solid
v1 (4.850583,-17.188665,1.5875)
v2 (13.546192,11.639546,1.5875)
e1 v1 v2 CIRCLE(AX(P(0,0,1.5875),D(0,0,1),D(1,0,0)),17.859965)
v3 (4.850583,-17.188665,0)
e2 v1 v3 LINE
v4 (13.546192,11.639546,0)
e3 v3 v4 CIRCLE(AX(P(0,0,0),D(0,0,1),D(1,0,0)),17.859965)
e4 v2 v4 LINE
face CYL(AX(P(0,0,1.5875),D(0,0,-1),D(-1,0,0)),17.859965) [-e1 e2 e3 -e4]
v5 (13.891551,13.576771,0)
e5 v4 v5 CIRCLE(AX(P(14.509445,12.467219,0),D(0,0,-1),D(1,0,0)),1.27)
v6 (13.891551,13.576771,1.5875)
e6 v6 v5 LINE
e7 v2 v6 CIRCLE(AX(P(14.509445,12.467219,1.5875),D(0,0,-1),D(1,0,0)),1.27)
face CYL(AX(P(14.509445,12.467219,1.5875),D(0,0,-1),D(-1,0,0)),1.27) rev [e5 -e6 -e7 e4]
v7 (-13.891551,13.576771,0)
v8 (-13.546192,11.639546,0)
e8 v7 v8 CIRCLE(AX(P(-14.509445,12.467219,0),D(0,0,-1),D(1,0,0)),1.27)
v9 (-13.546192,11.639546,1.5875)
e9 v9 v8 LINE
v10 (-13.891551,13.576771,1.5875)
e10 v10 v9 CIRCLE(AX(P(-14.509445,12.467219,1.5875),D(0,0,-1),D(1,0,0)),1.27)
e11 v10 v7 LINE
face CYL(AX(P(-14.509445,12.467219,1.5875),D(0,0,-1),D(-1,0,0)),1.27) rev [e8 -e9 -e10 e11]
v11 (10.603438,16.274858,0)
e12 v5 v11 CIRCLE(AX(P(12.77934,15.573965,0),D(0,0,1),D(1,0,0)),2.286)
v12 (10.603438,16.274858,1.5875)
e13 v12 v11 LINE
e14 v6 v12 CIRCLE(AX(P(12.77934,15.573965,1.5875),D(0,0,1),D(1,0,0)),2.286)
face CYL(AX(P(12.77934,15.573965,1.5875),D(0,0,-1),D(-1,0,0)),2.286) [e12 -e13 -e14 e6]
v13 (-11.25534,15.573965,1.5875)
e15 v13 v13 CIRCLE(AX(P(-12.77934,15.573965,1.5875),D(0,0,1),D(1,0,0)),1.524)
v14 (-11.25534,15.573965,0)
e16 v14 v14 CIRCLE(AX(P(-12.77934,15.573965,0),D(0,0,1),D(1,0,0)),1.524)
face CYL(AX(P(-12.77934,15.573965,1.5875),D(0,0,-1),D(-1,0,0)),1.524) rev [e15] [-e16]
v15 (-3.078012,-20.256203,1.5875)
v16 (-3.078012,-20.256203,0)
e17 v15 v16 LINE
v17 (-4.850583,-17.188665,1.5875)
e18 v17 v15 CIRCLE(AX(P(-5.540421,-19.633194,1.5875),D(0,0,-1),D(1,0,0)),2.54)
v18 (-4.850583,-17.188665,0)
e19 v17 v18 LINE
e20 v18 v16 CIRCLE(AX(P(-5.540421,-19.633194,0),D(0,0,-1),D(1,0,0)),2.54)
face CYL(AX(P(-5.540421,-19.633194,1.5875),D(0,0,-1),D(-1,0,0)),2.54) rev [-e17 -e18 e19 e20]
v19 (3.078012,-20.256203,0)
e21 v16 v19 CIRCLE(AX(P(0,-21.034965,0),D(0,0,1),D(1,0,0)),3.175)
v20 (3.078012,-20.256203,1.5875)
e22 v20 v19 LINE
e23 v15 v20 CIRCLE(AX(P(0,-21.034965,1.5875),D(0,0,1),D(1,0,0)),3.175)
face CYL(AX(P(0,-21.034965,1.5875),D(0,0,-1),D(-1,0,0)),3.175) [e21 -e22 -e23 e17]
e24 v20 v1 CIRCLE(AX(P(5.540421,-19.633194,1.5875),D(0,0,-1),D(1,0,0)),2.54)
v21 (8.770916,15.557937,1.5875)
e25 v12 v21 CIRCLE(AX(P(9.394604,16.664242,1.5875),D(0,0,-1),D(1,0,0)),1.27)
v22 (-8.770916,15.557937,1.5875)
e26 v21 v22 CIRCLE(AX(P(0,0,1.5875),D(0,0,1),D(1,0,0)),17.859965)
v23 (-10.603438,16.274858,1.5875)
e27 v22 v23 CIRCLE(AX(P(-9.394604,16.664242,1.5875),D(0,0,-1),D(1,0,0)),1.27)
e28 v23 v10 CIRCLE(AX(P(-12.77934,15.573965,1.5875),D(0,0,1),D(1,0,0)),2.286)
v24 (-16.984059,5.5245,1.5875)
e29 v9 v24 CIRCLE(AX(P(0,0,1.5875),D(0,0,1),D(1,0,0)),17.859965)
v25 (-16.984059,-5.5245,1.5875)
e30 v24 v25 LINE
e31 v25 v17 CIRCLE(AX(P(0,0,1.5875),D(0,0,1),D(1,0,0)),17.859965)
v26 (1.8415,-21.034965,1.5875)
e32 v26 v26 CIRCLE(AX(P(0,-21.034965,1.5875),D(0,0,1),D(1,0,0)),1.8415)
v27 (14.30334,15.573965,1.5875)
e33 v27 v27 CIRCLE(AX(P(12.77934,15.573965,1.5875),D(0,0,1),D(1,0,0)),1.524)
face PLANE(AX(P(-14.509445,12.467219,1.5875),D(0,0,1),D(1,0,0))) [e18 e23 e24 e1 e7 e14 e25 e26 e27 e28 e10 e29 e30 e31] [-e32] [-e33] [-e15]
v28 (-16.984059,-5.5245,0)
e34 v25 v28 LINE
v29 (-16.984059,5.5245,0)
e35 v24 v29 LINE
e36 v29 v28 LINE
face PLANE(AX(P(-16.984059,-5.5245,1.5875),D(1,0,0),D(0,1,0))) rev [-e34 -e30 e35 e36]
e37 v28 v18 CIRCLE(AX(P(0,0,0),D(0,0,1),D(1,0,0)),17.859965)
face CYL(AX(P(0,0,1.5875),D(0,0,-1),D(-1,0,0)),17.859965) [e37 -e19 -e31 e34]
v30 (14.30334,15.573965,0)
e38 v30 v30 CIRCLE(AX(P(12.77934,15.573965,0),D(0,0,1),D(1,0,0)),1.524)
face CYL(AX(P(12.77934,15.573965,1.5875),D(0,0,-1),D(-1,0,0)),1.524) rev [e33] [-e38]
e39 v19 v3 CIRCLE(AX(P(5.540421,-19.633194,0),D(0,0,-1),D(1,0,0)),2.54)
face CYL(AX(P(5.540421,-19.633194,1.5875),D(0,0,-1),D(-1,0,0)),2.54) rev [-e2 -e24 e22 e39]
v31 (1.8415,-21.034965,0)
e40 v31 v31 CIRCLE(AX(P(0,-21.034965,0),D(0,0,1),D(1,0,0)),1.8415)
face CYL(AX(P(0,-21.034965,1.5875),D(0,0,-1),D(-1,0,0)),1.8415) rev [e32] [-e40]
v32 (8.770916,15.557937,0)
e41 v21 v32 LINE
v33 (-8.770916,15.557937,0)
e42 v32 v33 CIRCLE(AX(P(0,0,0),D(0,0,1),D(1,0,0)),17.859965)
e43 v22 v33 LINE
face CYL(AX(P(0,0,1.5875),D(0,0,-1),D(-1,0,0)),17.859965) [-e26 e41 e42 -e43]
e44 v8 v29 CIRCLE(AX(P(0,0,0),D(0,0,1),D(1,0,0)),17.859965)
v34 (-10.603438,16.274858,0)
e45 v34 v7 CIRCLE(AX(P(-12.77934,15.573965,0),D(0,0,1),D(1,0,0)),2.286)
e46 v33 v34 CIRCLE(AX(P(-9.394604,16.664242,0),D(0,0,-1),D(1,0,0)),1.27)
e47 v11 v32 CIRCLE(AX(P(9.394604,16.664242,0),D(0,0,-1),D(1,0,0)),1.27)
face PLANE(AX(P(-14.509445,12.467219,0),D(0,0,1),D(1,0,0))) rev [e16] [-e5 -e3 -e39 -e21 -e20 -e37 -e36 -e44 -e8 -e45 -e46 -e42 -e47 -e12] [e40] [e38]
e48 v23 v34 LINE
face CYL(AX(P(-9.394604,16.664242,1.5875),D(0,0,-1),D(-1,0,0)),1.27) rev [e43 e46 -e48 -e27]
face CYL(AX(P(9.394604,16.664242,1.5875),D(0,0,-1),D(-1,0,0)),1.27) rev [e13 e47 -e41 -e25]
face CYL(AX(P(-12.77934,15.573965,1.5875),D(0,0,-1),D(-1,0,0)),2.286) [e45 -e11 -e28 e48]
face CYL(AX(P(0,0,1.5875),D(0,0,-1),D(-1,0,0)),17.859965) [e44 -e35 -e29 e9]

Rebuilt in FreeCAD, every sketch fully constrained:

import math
import FreeCAD as App
import Part
import Sketcher
Q = App.Units.Quantity

doc = App.newDocument("Part")
body = doc.addObject("PartDesign::Body", "Body")

sketch1 = body.newObject("Sketcher::SketchObject", "Sketch")
sketch1.AttachmentSupport = (doc.getObject("XY_Plane"), [""])
sketch1.MapMode = "FlatFace"
sketch1.addGeometry(Part.LineSegment(App.Vector(-17, 5.5, 0), App.Vector(-17, -5.5, 0)), False)
sketch1.addGeometry(Part.ArcOfCircle(Part.Circle(App.Vector(0, 0, 0), App.Vector(0, 0, 1), 17.9), math.radians(-162), math.radians(-106)), False)
sketch1.addGeometry(Part.ArcOfCircle(Part.Circle(App.Vector(-5.5, -19.6, 0), App.Vector(0, 0, 1), 2.5), math.radians(-14), math.radians(74)), False)
sketch1.addGeometry(Part.ArcOfCircle(Part.Circle(App.Vector(0, -21, 0), App.Vector(0, 0, 1), 3.2), math.radians(166), math.radians(374)), False)
sketch1.addGeometry(Part.ArcOfCircle(Part.Circle(App.Vector(5.5, -19.6, 0), App.Vector(0, 0, 1), 2.5), math.radians(106), math.radians(194)), False)
sketch1.addGeometry(Part.ArcOfCircle(Part.Circle(App.Vector(0, 0, 0), App.Vector(0, 0, 1), 17.9), math.radians(-74), math.radians(41)), False)
sketch1.addGeometry(Part.ArcOfCircle(Part.Circle(App.Vector(14.5, 12.5, 0), App.Vector(0, 0, 1), 1.3), math.radians(119), math.radians(221)), False)
sketch1.addGeometry(Part.ArcOfCircle(Part.Circle(App.Vector(12.8, 15.6, 0), App.Vector(0, 0, 1), 2.3), math.radians(-61), math.radians(162)), False)
sketch1.addGeometry(Part.ArcOfCircle(Part.Circle(App.Vector(9.4, 16.7, 0), App.Vector(0, 0, 1), 1.3), math.radians(-119), math.radians(-18)), False)
sketch1.addGeometry(Part.ArcOfCircle(Part.Circle(App.Vector(0, 0, 0), App.Vector(0, 0, 1), 17.9), math.radians(61), math.radians(119)), False)
sketch1.addGeometry(Part.ArcOfCircle(Part.Circle(App.Vector(-9.4, 16.7, 0), App.Vector(0, 0, 1), 1.3), math.radians(-162), math.radians(-61)), False)
sketch1.addGeometry(Part.ArcOfCircle(Part.Circle(App.Vector(-12.8, 15.6, 0), App.Vector(0, 0, 1), 2.3), math.radians(18), math.radians(241)), False)
sketch1.addGeometry(Part.ArcOfCircle(Part.Circle(App.Vector(-14.5, 12.5, 0), App.Vector(0, 0, 1), 1.3), math.radians(-41), math.radians(61)), False)
sketch1.addGeometry(Part.ArcOfCircle(Part.Circle(App.Vector(0, 0, 0), App.Vector(0, 0, 1), 17.9), math.radians(139), math.radians(162)), False)
sketch1.addGeometry(Part.Circle(App.Vector(0, -21, 0), App.Vector(0, 0, 1), 1.8), False)
sketch1.addGeometry(Part.Circle(App.Vector(12.8, 15.6, 0), App.Vector(0, 0, 1), 1.5), False)
sketch1.addGeometry(Part.Circle(App.Vector(-12.8, 15.6, 0), App.Vector(0, 0, 1), 1.5), False)
sketch1.addConstraint(Sketcher.Constraint("Coincident", 0, 2, 1, 1))
sketch1.addConstraint(Sketcher.Constraint("Tangent", 1, 2, 2, 2))
sketch1.addConstraint(Sketcher.Constraint("Tangent", 2, 1, 3, 1))
sketch1.addConstraint(Sketcher.Constraint("Tangent", 3, 2, 4, 2))
sketch1.addConstraint(Sketcher.Constraint("Tangent", 4, 1, 5, 1))
sketch1.addConstraint(Sketcher.Constraint("Tangent", 5, 2, 6, 2))
sketch1.addConstraint(Sketcher.Constraint("Tangent", 6, 1, 7, 1))
sketch1.addConstraint(Sketcher.Constraint("Tangent", 7, 2, 8, 2))
sketch1.addConstraint(Sketcher.Constraint("Tangent", 8, 1, 9, 1))
sketch1.addConstraint(Sketcher.Constraint("Tangent", 9, 2, 10, 2))
sketch1.addConstraint(Sketcher.Constraint("Tangent", 10, 1, 11, 1))
sketch1.addConstraint(Sketcher.Constraint("Tangent", 11, 2, 12, 2))
sketch1.addConstraint(Sketcher.Constraint("Tangent", 12, 1, 13, 1))
sketch1.addConstraint(Sketcher.Constraint("Coincident", 13, 2, 0, 1))
sketch1.addConstraint(Sketcher.Constraint("Vertical", 0))
sketch1.addConstraint(Sketcher.Constraint("Coincident", 1, 3, -1, 1))
sketch1.addConstraint(Sketcher.Constraint("Coincident", 5, 3, -1, 1))
sketch1.addConstraint(Sketcher.Constraint("Coincident", 9, 3, -1, 1))
sketch1.addConstraint(Sketcher.Constraint("Coincident", 13, 3, -1, 1))
sketch1.addConstraint(Sketcher.Constraint("Coincident", 14, 3, 3, 3))
sketch1.addConstraint(Sketcher.Constraint("Coincident", 15, 3, 7, 3))
sketch1.addConstraint(Sketcher.Constraint("Coincident", 16, 3, 11, 3))
sketch1.addConstraint(Sketcher.Constraint("Equal", 2, 4))
sketch1.addConstraint(Sketcher.Constraint("Equal", 1, 5))
sketch1.addConstraint(Sketcher.Constraint("Equal", 6, 8))
sketch1.addConstraint(Sketcher.Constraint("Equal", 5, 9))
sketch1.addConstraint(Sketcher.Constraint("Equal", 8, 10))
sketch1.addConstraint(Sketcher.Constraint("Equal", 7, 11))
sketch1.addConstraint(Sketcher.Constraint("Equal", 10, 12))
sketch1.addConstraint(Sketcher.Constraint("Equal", 9, 13))
sketch1.addConstraint(Sketcher.Constraint("Equal", 15, 16))
sketch1.addConstraint(Sketcher.Constraint("Symmetric", 7, 3, 11, 3, -2))
sketch1.addConstraint(Sketcher.Constraint("PointOnObject", 3, 3, -2))
sketch1.addConstraint(Sketcher.Constraint("Radius", 2, Q("0.1 in")))
sketch1.addConstraint(Sketcher.Constraint("Diameter", 15, Q("0.12 in")))
sketch1.addConstraint(Sketcher.Constraint("Radius", 6, Q("0.05 in")))
sketch1.addConstraint(Sketcher.Constraint("Radius", 7, Q("0.09 in")))
sketch1.addConstraint(Sketcher.Constraint("Diameter", 14, Q("0.145 in")))
sketch1.addConstraint(Sketcher.Constraint("Radius", 3, Q("0.125 in")))
sketch1.addConstraint(Sketcher.Constraint("DistanceY", 0, 2, 0, 1, Q("0.435 in")))
sketch1.addConstraint(Sketcher.Constraint("Radius", 1, 17.859965))
sketch1.addConstraint(Sketcher.Constraint("DistanceX", 8, 1, 6, 1, Q("0.2015998 in")))
sketch1.addConstraint(Sketcher.Constraint("DistanceY", 3, 3, 1, 2, 3.8463))
sketch1.addConstraint(Sketcher.Constraint("DistanceX", 7, 2, 7, 3, 2.175901))
pad1 = body.newObject("PartDesign::Pad", "Pad")
pad1.Profile = sketch1
pad1.Length = Q("0.0625 in")

doc.recompute()
